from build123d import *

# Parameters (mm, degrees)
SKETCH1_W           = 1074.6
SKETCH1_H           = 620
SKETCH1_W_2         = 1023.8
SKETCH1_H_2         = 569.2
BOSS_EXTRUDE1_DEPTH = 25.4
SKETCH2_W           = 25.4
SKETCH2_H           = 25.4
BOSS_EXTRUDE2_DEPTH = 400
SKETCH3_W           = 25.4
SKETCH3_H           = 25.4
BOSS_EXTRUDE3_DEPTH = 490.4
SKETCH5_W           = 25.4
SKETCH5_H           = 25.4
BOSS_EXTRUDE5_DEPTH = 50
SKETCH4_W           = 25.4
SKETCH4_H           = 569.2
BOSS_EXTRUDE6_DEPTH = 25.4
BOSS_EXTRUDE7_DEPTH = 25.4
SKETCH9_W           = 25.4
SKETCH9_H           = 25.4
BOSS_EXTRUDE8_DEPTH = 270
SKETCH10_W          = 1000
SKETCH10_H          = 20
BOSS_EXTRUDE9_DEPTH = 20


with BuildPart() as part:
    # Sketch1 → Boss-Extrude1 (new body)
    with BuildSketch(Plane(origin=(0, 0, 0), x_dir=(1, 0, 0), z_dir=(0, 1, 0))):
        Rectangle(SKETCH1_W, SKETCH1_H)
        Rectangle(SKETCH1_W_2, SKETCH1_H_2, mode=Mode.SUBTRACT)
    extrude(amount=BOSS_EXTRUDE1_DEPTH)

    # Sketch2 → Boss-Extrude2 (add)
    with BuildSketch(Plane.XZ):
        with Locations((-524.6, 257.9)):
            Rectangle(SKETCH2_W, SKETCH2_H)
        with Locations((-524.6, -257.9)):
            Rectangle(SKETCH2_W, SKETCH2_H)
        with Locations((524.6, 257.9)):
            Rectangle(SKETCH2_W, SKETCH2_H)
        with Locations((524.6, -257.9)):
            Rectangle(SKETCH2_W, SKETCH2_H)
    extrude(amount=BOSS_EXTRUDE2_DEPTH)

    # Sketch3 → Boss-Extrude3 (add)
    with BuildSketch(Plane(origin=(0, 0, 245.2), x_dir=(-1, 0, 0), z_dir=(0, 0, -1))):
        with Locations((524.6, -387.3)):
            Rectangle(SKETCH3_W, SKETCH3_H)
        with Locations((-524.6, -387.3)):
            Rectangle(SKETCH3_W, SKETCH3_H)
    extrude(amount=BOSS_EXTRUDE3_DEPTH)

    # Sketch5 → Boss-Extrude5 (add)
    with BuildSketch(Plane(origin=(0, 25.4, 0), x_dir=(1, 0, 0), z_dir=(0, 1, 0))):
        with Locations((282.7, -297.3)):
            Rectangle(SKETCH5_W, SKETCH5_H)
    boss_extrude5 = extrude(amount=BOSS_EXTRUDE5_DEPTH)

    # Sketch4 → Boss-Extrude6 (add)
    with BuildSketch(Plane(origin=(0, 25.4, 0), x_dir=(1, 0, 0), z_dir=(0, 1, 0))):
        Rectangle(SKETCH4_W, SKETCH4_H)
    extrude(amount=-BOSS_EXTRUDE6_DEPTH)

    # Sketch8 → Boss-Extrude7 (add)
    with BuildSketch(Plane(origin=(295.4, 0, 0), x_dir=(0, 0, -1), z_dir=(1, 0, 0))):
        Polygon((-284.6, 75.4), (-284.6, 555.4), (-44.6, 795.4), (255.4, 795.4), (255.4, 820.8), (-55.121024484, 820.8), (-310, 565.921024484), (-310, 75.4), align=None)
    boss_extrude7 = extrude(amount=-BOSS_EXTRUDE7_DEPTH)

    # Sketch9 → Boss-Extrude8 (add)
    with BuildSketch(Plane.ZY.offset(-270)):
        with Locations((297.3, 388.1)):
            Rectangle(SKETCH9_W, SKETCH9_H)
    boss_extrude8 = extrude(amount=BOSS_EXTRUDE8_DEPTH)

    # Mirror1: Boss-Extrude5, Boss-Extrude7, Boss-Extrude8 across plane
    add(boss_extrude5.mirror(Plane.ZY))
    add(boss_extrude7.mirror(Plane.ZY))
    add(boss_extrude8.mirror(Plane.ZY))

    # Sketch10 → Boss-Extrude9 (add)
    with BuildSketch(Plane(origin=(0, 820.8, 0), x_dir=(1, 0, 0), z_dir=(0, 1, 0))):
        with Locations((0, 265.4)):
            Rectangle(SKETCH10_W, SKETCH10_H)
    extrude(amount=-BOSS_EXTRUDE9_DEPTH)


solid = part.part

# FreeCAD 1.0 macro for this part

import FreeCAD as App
import Part
import Sketcher
from FreeCAD import Vector
Q = App.Units.Quantity

doc = App.newDocument("Part")
body = doc.addObject("PartDesign::Body", "Body")

sketch1 = body.newObject("Sketcher::SketchObject", "Sketch")
sketch1.AttachmentSupport = (doc.getObject("XZ_Plane"), [""])
sketch1.MapMode = "FlatFace"
sketch1.addGeometry([
    Part.LineSegment(Vector(-537, -310, 0), Vector(-537, 310, 0)),
    Part.LineSegment(Vector(-537, 310, 0), Vector(537, 310, 0)),
    Part.LineSegment(Vector(537, 310, 0), Vector(537, -310, 0)),
    Part.LineSegment(Vector(537, -310, 0), Vector(-537, -310, 0)),
    Part.LineSegment(Vector(512, 285, 0), Vector(-512, 285, 0)),
    Part.LineSegment(Vector(-512, 285, 0), Vector(-512, -285, 0)),
    Part.LineSegment(Vector(-512, -285, 0), Vector(512, -285, 0)),
    Part.LineSegment(Vector(512, -285, 0), Vector(512, 285, 0)),
], False)
sketch1.addConstraint([
    Sketcher.Constraint("Coincident", 0, 2, 1, 1),
    Sketcher.Constraint("Coincident", 1, 2, 2, 1),
    Sketcher.Constraint("Coincident", 2, 2, 3, 1),
    Sketcher.Constraint("Coincident", 3, 2, 0, 1),
    Sketcher.Constraint("Coincident", 4, 2, 5, 1),
    Sketcher.Constraint("Coincident", 5, 2, 6, 1),
    Sketcher.Constraint("Coincident", 6, 2, 7, 1),
    Sketcher.Constraint("Coincident", 7, 2, 4, 1),
    Sketcher.Constraint("Vertical", 0),
    Sketcher.Constraint("Horizontal", 1),
    Sketcher.Constraint("Vertical", 2),
    Sketcher.Constraint("Horizontal", 3),
    Sketcher.Constraint("Horizontal", 4),
    Sketcher.Constraint("Vertical", 5),
    Sketcher.Constraint("Horizontal", 6),
    Sketcher.Constraint("Vertical", 7),
    Sketcher.Constraint("Symmetric", 0, 2, 2, 2, -1, 1),
    Sketcher.Constraint("Symmetric", 4, 2, 6, 2, -1, 1),
    Sketcher.Constraint("DistanceY", 0, 1, 0, 2, 620.0),
    Sketcher.Constraint("DistanceX", 1, 1, 1, 2, 1074.6),
    Sketcher.Constraint("DistanceX", 4, 2, 4, 1, 1023.8),
    Sketcher.Constraint("DistanceY", 5, 2, 5, 1, 569.2),
])
pad1 = body.newObject("PartDesign::Pad", "Pad")
pad1.Profile = sketch1
pad1.Length = 25.4
pad1.Reversed = True

sketch2 = body.newObject("Sketcher::SketchObject", "Sketch001")
sketch2.AttachmentSupport = (doc.getObject("XZ_Plane"), [""])
sketch2.MapMode = "FlatFace"
sketch2.addGeometry([
    Part.LineSegment(Vector(-537, 271, 0), Vector(-537, 245, 0)),
    Part.LineSegment(Vector(-537, 245, 0), Vector(-512, 245, 0)),
    Part.LineSegment(Vector(-512, 245, 0), Vector(-512, 271, 0)),
    Part.LineSegment(Vector(-512, 271, 0), Vector(-537, 271, 0)),
    Part.LineSegment(Vector(-537, -245, 0), Vector(-537, -271, 0)),
    Part.LineSegment(Vector(-537, -271, 0), Vector(-512, -271, 0)),
    Part.LineSegment(Vector(-512, -271, 0), Vector(-512, -245, 0)),
    Part.LineSegment(Vector(-512, -245, 0), Vector(-537, -245, 0)),
    Part.LineSegment(Vector(512, 271, 0), Vector(512, 245, 0)),
    Part.LineSegment(Vector(512, 245, 0), Vector(537, 245, 0)),
    Part.LineSegment(Vector(537, 245, 0), Vector(537, 271, 0)),
    Part.LineSegment(Vector(537, 271, 0), Vector(512, 271, 0)),
    Part.LineSegment(Vector(512, -245, 0), Vector(512, -271, 0)),
    Part.LineSegment(Vector(512, -271, 0), Vector(537, -271, 0)),
    Part.LineSegment(Vector(537, -271, 0), Vector(537, -245, 0)),
    Part.LineSegment(Vector(537, -245, 0), Vector(512, -245, 0)),
], False)
sketch2.addConstraint([
    Sketcher.Constraint("Coincident", 0, 2, 1, 1),
    Sketcher.Constraint("Coincident", 1, 2, 2, 1),
    Sketcher.Constraint("Coincident", 2, 2, 3, 1),
    Sketcher.Constraint("Coincident", 3, 2, 0, 1),
    Sketcher.Constraint("Coincident", 4, 2, 5, 1),
    Sketcher.Constraint("Coincident", 5, 2, 6, 1),
    Sketcher.Constraint("Coincident", 6, 2, 7, 1),
    Sketcher.Constraint("Coincident", 7, 2, 4, 1),
    Sketcher.Constraint("Coincident", 8, 2, 9, 1),
    Sketcher.Constraint("Coincident", 9, 2, 10, 1),
    Sketcher.Constraint("Coincident", 10, 2, 11, 1),
    Sketcher.Constraint("Coincident", 11, 2, 8, 1),
    Sketcher.Constraint("Coincident", 12, 2, 13, 1),
    Sketcher.Constraint("Coincident", 13, 2, 14, 1),
    Sketcher.Constraint("Coincident", 14, 2, 15, 1),
    Sketcher.Constraint("Coincident", 15, 2, 12, 1),
    Sketcher.Constraint("Vertical", 0),
    Sketcher.Constraint("Horizontal", 1),
    Sketcher.Constraint("Vertical", 2),
    Sketcher.Constraint("Horizontal", 3),
    Sketcher.Constraint("Vertical", 4),
    Sketcher.Constraint("Horizontal", 5),
    Sketcher.Constraint("Vertical", 6),
    Sketcher.Constraint("Horizontal", 7),
    Sketcher.Constraint("Vertical", 8),
    Sketcher.Constraint("Horizontal", 9),
    Sketcher.Constraint("Vertical", 10),
    Sketcher.Constraint("Horizontal", 11),
    Sketcher.Constraint("Vertical", 12),
    Sketcher.Constraint("Horizontal", 13),
    Sketcher.Constraint("Vertical", 14),
    Sketcher.Constraint("Horizontal", 15),
    Sketcher.Constraint("Symmetric", 6, 2, 8, 2, -1, 1),
    Sketcher.Constraint("Symmetric", 4, 2, 10, 2, -1, 1),
    Sketcher.Constraint("Symmetric", 2, 2, 12, 2, -1, 1),
    Sketcher.Constraint("Symmetric", 0, 2, 14, 2, -1, 1),
    Sketcher.Constraint("Symmetric", 1, 2, 8, 2, -2),
    Sketcher.Constraint("Symmetric", 3, 2, 10, 2, -2),
    Sketcher.Constraint("Equal", 15, 0),
    Sketcher.Constraint("DistanceX", 1, 1, 1, 2, 25.4),
    Sketcher.Constraint("DistanceX", 0, 2, -1, 1, 537.3),
    Sketcher.Constraint("DistanceY", -1, 1, 0, 2, 245.2),
])
pad2 = body.newObject("PartDesign::Pad", "Pad001")
pad2.Profile = sketch2
pad2.Length = 400

sketch3 = body.newObject("Sketcher::SketchObject", "Sketch002")
sketch3.AttachmentSupport = (doc.getObject("XY_Plane"), [""])
sketch3.MapMode = "FlatFace"
sketch3.AttachmentOffset = App.Placement(Vector(0, 0, 245.2), App.Rotation())
sketch3.addGeometry([
    Part.LineSegment(Vector(-512, -375, 0), Vector(-512, -400, 0)),
    Part.LineSegment(Vector(-512, -400, 0), Vector(-537, -400, 0)),
    Part.LineSegment(Vector(-537, -400, 0), Vector(-537, -375, 0)),
    Part.LineSegment(Vector(-537, -375, 0), Vector(-512, -375, 0)),
    Part.LineSegment(Vector(537, -375, 0), Vector(537, -400, 0)),
    Part.LineSegment(Vector(537, -400, 0), Vector(512, -400, 0)),
    Part.LineSegment(Vector(512, -400, 0), Vector(512, -375, 0)),
    Part.LineSegment(Vector(512, -375, 0), Vector(537, -375, 0)),
], False)
sketch3.addConstraint([
    Sketcher.Constraint("Coincident", 0, 2, 1, 1),
    Sketcher.Constraint("Coincident", 1, 2, 2, 1),
    Sketcher.Constraint("Coincident", 2, 2, 3, 1),
    Sketcher.Constraint("Coincident", 3, 2, 0, 1),
    Sketcher.Constraint("Coincident", 4, 2, 5, 1),
    Sketcher.Constraint("Coincident", 5, 2, 6, 1),
    Sketcher.Constraint("Coincident", 6, 2, 7, 1),
    Sketcher.Constraint("Coincident", 7, 2, 4, 1),
    Sketcher.Constraint("Vertical", 0),
    Sketcher.Constraint("Horizontal", 1),
    Sketcher.Constraint("Vertical", 2),
    Sketcher.Constraint("Horizontal", 3),
    Sketcher.Constraint("Vertical", 4),
    Sketcher.Constraint("Horizontal", 5),
    Sketcher.Constraint("Vertical", 6),
    Sketcher.Constraint("Horizontal", 7),
    Sketcher.Constraint("Symmetric", 1, 2, 4, 2, -2),
    Sketcher.Constraint("Symmetric", 3, 2, 6, 2, -2),
    Sketcher.Constraint("Equal", 7, 0),
    Sketcher.Constraint("DistanceX", 1, 2, 1, 1, 25.4),
    Sketcher.Constraint("DistanceY", 0, 2, -1, 1, 400.0),
    Sketcher.Constraint("DistanceX", 0, 2, -1, 1, 511.9),
])
pad3 = body.newObject("PartDesign::Pad", "Pad002")
pad3.Profile = sketch3
pad3.Length = 490.4
pad3.Reversed = True

sketch4 = body.newObject("Sketcher::SketchObject", "Sketch003")
sketch4.AttachmentSupport = (doc.getObject("XZ_Plane"), [""])
sketch4.MapMode = "FlatFace"
sketch4.AttachmentOffset = App.Placement(Vector(0, 0, -25.4), App.Rotation())
sketch4.addGeometry([
    Part.LineSegment(Vector(270, 285, 0), Vector(270, 310, 0)),
    Part.LineSegment(Vector(270, 310, 0), Vector(295, 310, 0)),
    Part.LineSegment(Vector(295, 310, 0), Vector(295, 285, 0)),
    Part.LineSegment(Vector(295, 285, 0), Vector(270, 285, 0)),
], False)
sketch4.addConstraint([
    Sketcher.Constraint("Coincident", 0, 2, 1, 1),
    Sketcher.Constraint("Coincident", 1, 2, 2, 1),
    Sketcher.Constraint("Coincident", 2, 2, 3, 1),
    Sketcher.Constraint("Coincident", 3, 2, 0, 1),
    Sketcher.Constraint("Vertical", 0),
    Sketcher.Constraint("Horizontal", 1),
    Sketcher.Constraint("Vertical", 2),
    Sketcher.Constraint("Horizontal", 3),
    Sketcher.Constraint("Equal", 3, 0),
    Sketcher.Constraint("DistanceX", 1, 1, 1, 2, 25.4),
    Sketcher.Constraint("DistanceX", -1, 1, 0, 2, 270.0),
    Sketcher.Constraint("DistanceY", -1, 1, 0, 2, 310.0),
])
pad4 = body.newObject("PartDesign::Pad", "Pad003")
pad4.Profile = sketch4
pad4.Length = 50
pad4.Reversed = True

sketch5 = body.newObject("Sketcher::SketchObject", "Sketch004")
sketch5.AttachmentSupport = (doc.getObject("XZ_Plane"), [""])
sketch5.MapMode = "FlatFace"
sketch5.AttachmentOffset = App.Placement(Vector(0, 0, -25.4), App.Rotation())
sketch5.addGeometry([
    Part.LineSegment(Vector(-13, -285, 0), Vector(-13, 285, 0)),
    Part.LineSegment(Vector(-13, 285, 0), Vector(13, 285, 0)),
    Part.LineSegment(Vector(13, 285, 0), Vector(13, -285, 0)),
    Part.LineSegment(Vector(13, -285, 0), Vector(-13, -285, 0)),
], False)
sketch5.addConstraint([
    Sketcher.Constraint("Coincident", 0, 2, 1, 1),
    Sketcher.Constraint("Coincident", 1, 2, 2, 1),
    Sketcher.Constraint("Coincident", 2, 2, 3, 1),
    Sketcher.Constraint("Coincident", 3, 2, 0, 1),
    Sketcher.Constraint("Vertical", 0),
    Sketcher.Constraint("Horizontal", 1),
    Sketcher.Constraint("Vertical", 2),
    Sketcher.Constraint("Horizontal", 3),
    Sketcher.Constraint("Symmetric", 0, 2, 2, 2, -1, 1),
    Sketcher.Constraint("DistanceX", 1, 1, 1, 2, 25.4),
    Sketcher.Constraint("DistanceY", 0, 1, 0, 2, 569.2),
])
pad5 = body.newObject("PartDesign::Pad", "Pad004")
pad5.Profile = sketch5
pad5.Length = 25.4

sketch6 = body.newObject("Sketcher::SketchObject", "Sketch005")
sketch6.AttachmentSupport = (doc.getObject("YZ_Plane"), [""])
sketch6.MapMode = "FlatFace"
sketch6.AttachmentOffset = App.Placement(Vector(0, 0, 295.4), App.Rotation())
sketch6.addGeometry([
    Part.LineSegment(Vector(75, 285, 0), Vector(555, 285, 0)),
    Part.LineSegment(Vector(555, 285, 0), Vector(795, 45, 0)),
    Part.LineSegment(Vector(795, 45, 0), Vector(795, -255, 0)),
    Part.LineSegment(Vector(795, -255, 0), Vector(821, -255, 0)),
    Part.LineSegment(Vector(821, -255, 0), Vector(821, 55, 0)),
    Part.LineSegment(Vector(821, 55, 0), Vector(566, 310, 0)),
    Part.LineSegment(Vector(566, 310, 0), Vector(75, 310, 0)),
    Part.LineSegment(Vector(75, 310, 0), Vector(75, 285, 0)),
], False)
sketch6.addConstraint([
    Sketcher.Constraint("Coincident", 0, 2, 1, 1),
    Sketcher.Constraint("Coincident", 1, 2, 2, 1),
    Sketcher.Constraint("Coincident", 2, 2, 3, 1),
    Sketcher.Constraint("Coincident", 3, 2, 4, 1),
    Sketcher.Constraint("Coincident", 4, 2, 5, 1),
    Sketcher.Constraint("Coincident", 5, 2, 6, 1),
    Sketcher.Constraint("Coincident", 6, 2, 7, 1),
    Sketcher.Constraint("Coincident", 7, 2, 0, 1),
    Sketcher.Constraint("Horizontal", 0),
    Sketcher.Constraint("Vertical", 2),
    Sketcher.Constraint("Horizontal", 3),
    Sketcher.Constraint("Vertical", 4),
    Sketcher.Constraint("Horizontal", 6),
    Sketcher.Constraint("Vertical", 7),
    Sketcher.Constraint("Parallel", 1, 5),
    Sketcher.Constraint("Equal", 3, 7),
    Sketcher.Constraint("DistanceX", 0, 1, 0, 2, 480.0),
    Sketcher.Constraint("DistanceY", 2, 2, 2, 1, 300.0),
    Sketcher.Constraint("Angle", 1, Q("-45 deg")),
    Sketcher.Constraint("DistanceX", 3, 1, 3, 2, 25.4),
    Sketcher.Constraint("DistanceY", -1, 1, 5, 2, 310.0),
    Sketcher.Constraint("DistanceX", 0, 2, 1, 2, 240.0),
    Sketcher.Constraint("DistanceX", -1, 1, 0, 2, 555.4),
    Sketcher.Constraint("DistanceX", 6, 2, 6, 1, 490.521024),
])
pad6 = body.newObject("PartDesign::Pad", "Pad005")
pad6.Profile = sketch6
pad6.Length = 25.4
pad6.Reversed = True

sketch7 = body.newObject("Sketcher::SketchObject", "Sketch006")
sketch7.AttachmentSupport = (doc.getObject("YZ_Plane"), [""])
sketch7.MapMode = "FlatFace"
sketch7.AttachmentOffset = App.Placement(Vector(0, 0, 270), App.Rotation())
sketch7.addGeometry([
    Part.LineSegment(Vector(401, 285, 0), Vector(375, 285, 0)),
    Part.LineSegment(Vector(375, 285, 0), Vector(375, 310, 0)),
    Part.LineSegment(Vector(375, 310, 0), Vector(401, 310, 0)),
    Part.LineSegment(Vector(401, 310, 0), Vector(401, 285, 0)),
], False)
sketch7.addConstraint([
    Sketcher.Constraint("Coincident", 0, 2, 1, 1),
    Sketcher.Constraint("Coincident", 1, 2, 2, 1),
    Sketcher.Constraint("Coincident", 2, 2, 3, 1),
    Sketcher.Constraint("Coincident", 3, 2, 0, 1),
    Sketcher.Constraint("Horizontal", 0),
    Sketcher.Constraint("Vertical", 1),
    Sketcher.Constraint("Horizontal", 2),
    Sketcher.Constraint("Vertical", 3),
    Sketcher.Constraint("Equal", 2, 1),
    Sketcher.Constraint("DistanceX", 0, 2, 0, 1, 25.4),
    Sketcher.Constraint("DistanceY", -1, 1, 1, 2, 310.0),
    Sketcher.Constraint("DistanceX", -1, 1, 0, 2, 375.4),
])
pad7 = body.newObject("PartDesign::Pad", "Pad006")
pad7.Profile = sketch7
pad7.Length = 270
pad7.Reversed = True
doc.recompute()

mirrored = body.newObject("PartDesign::Mirrored", "Mirrored")
mirrored.Originals = [pad4, pad6, pad7]
mirrored.MirrorPlane = (doc.getObject("YZ_Plane"), [""])
body.Tip = mirrored

sketch8 = body.newObject("Sketcher::SketchObject", "Sketch007")
sketch8.AttachmentSupport = (doc.getObject("XZ_Plane"), [""])
sketch8.MapMode = "FlatFace"
sketch8.AttachmentOffset = App.Placement(Vector(0, 0, -820.8), App.Rotation())
sketch8.addGeometry([
    Part.LineSegment(Vector(-500, -275, 0), Vector(-500, -255, 0)),
    Part.LineSegment(Vector(-500, -255, 0), Vector(500, -255, 0)),
    Part.LineSegment(Vector(500, -255, 0), Vector(500, -275, 0)),
    Part.LineSegment(Vector(500, -275, 0), Vector(-500, -275, 0)),
], False)
sketch8.addConstraint([
    Sketcher.Constraint("Coincident", 0, 2, 1, 1),
    Sketcher.Constraint("Coincident", 1, 2, 2, 1),
    Sketcher.Constraint("Coincident", 2, 2, 3, 1),
    Sketcher.Constraint("Coincident", 3, 2, 0, 1),
    Sketcher.Constraint("Vertical", 0),
    Sketcher.Constraint("Horizontal", 1),
    Sketcher.Constraint("Vertical", 2),
    Sketcher.Constraint("Horizontal", 3),
    Sketcher.Constraint("DistanceX", 1, 1, 1, 2, 1000.0),
    Sketcher.Constraint("DistanceY", 0, 1, 0, 2, 20.0),
    Sketcher.Constraint("DistanceX", 0, 2, -1, 1, 500.0),
    Sketcher.Constraint("DistanceY", 0, 2, -1, 1, 255.4),
])
pad8 = body.newObject("PartDesign::Pad", "Pad007")
pad8.Profile = sketch8
pad8.Length = 20

doc.recompute()
